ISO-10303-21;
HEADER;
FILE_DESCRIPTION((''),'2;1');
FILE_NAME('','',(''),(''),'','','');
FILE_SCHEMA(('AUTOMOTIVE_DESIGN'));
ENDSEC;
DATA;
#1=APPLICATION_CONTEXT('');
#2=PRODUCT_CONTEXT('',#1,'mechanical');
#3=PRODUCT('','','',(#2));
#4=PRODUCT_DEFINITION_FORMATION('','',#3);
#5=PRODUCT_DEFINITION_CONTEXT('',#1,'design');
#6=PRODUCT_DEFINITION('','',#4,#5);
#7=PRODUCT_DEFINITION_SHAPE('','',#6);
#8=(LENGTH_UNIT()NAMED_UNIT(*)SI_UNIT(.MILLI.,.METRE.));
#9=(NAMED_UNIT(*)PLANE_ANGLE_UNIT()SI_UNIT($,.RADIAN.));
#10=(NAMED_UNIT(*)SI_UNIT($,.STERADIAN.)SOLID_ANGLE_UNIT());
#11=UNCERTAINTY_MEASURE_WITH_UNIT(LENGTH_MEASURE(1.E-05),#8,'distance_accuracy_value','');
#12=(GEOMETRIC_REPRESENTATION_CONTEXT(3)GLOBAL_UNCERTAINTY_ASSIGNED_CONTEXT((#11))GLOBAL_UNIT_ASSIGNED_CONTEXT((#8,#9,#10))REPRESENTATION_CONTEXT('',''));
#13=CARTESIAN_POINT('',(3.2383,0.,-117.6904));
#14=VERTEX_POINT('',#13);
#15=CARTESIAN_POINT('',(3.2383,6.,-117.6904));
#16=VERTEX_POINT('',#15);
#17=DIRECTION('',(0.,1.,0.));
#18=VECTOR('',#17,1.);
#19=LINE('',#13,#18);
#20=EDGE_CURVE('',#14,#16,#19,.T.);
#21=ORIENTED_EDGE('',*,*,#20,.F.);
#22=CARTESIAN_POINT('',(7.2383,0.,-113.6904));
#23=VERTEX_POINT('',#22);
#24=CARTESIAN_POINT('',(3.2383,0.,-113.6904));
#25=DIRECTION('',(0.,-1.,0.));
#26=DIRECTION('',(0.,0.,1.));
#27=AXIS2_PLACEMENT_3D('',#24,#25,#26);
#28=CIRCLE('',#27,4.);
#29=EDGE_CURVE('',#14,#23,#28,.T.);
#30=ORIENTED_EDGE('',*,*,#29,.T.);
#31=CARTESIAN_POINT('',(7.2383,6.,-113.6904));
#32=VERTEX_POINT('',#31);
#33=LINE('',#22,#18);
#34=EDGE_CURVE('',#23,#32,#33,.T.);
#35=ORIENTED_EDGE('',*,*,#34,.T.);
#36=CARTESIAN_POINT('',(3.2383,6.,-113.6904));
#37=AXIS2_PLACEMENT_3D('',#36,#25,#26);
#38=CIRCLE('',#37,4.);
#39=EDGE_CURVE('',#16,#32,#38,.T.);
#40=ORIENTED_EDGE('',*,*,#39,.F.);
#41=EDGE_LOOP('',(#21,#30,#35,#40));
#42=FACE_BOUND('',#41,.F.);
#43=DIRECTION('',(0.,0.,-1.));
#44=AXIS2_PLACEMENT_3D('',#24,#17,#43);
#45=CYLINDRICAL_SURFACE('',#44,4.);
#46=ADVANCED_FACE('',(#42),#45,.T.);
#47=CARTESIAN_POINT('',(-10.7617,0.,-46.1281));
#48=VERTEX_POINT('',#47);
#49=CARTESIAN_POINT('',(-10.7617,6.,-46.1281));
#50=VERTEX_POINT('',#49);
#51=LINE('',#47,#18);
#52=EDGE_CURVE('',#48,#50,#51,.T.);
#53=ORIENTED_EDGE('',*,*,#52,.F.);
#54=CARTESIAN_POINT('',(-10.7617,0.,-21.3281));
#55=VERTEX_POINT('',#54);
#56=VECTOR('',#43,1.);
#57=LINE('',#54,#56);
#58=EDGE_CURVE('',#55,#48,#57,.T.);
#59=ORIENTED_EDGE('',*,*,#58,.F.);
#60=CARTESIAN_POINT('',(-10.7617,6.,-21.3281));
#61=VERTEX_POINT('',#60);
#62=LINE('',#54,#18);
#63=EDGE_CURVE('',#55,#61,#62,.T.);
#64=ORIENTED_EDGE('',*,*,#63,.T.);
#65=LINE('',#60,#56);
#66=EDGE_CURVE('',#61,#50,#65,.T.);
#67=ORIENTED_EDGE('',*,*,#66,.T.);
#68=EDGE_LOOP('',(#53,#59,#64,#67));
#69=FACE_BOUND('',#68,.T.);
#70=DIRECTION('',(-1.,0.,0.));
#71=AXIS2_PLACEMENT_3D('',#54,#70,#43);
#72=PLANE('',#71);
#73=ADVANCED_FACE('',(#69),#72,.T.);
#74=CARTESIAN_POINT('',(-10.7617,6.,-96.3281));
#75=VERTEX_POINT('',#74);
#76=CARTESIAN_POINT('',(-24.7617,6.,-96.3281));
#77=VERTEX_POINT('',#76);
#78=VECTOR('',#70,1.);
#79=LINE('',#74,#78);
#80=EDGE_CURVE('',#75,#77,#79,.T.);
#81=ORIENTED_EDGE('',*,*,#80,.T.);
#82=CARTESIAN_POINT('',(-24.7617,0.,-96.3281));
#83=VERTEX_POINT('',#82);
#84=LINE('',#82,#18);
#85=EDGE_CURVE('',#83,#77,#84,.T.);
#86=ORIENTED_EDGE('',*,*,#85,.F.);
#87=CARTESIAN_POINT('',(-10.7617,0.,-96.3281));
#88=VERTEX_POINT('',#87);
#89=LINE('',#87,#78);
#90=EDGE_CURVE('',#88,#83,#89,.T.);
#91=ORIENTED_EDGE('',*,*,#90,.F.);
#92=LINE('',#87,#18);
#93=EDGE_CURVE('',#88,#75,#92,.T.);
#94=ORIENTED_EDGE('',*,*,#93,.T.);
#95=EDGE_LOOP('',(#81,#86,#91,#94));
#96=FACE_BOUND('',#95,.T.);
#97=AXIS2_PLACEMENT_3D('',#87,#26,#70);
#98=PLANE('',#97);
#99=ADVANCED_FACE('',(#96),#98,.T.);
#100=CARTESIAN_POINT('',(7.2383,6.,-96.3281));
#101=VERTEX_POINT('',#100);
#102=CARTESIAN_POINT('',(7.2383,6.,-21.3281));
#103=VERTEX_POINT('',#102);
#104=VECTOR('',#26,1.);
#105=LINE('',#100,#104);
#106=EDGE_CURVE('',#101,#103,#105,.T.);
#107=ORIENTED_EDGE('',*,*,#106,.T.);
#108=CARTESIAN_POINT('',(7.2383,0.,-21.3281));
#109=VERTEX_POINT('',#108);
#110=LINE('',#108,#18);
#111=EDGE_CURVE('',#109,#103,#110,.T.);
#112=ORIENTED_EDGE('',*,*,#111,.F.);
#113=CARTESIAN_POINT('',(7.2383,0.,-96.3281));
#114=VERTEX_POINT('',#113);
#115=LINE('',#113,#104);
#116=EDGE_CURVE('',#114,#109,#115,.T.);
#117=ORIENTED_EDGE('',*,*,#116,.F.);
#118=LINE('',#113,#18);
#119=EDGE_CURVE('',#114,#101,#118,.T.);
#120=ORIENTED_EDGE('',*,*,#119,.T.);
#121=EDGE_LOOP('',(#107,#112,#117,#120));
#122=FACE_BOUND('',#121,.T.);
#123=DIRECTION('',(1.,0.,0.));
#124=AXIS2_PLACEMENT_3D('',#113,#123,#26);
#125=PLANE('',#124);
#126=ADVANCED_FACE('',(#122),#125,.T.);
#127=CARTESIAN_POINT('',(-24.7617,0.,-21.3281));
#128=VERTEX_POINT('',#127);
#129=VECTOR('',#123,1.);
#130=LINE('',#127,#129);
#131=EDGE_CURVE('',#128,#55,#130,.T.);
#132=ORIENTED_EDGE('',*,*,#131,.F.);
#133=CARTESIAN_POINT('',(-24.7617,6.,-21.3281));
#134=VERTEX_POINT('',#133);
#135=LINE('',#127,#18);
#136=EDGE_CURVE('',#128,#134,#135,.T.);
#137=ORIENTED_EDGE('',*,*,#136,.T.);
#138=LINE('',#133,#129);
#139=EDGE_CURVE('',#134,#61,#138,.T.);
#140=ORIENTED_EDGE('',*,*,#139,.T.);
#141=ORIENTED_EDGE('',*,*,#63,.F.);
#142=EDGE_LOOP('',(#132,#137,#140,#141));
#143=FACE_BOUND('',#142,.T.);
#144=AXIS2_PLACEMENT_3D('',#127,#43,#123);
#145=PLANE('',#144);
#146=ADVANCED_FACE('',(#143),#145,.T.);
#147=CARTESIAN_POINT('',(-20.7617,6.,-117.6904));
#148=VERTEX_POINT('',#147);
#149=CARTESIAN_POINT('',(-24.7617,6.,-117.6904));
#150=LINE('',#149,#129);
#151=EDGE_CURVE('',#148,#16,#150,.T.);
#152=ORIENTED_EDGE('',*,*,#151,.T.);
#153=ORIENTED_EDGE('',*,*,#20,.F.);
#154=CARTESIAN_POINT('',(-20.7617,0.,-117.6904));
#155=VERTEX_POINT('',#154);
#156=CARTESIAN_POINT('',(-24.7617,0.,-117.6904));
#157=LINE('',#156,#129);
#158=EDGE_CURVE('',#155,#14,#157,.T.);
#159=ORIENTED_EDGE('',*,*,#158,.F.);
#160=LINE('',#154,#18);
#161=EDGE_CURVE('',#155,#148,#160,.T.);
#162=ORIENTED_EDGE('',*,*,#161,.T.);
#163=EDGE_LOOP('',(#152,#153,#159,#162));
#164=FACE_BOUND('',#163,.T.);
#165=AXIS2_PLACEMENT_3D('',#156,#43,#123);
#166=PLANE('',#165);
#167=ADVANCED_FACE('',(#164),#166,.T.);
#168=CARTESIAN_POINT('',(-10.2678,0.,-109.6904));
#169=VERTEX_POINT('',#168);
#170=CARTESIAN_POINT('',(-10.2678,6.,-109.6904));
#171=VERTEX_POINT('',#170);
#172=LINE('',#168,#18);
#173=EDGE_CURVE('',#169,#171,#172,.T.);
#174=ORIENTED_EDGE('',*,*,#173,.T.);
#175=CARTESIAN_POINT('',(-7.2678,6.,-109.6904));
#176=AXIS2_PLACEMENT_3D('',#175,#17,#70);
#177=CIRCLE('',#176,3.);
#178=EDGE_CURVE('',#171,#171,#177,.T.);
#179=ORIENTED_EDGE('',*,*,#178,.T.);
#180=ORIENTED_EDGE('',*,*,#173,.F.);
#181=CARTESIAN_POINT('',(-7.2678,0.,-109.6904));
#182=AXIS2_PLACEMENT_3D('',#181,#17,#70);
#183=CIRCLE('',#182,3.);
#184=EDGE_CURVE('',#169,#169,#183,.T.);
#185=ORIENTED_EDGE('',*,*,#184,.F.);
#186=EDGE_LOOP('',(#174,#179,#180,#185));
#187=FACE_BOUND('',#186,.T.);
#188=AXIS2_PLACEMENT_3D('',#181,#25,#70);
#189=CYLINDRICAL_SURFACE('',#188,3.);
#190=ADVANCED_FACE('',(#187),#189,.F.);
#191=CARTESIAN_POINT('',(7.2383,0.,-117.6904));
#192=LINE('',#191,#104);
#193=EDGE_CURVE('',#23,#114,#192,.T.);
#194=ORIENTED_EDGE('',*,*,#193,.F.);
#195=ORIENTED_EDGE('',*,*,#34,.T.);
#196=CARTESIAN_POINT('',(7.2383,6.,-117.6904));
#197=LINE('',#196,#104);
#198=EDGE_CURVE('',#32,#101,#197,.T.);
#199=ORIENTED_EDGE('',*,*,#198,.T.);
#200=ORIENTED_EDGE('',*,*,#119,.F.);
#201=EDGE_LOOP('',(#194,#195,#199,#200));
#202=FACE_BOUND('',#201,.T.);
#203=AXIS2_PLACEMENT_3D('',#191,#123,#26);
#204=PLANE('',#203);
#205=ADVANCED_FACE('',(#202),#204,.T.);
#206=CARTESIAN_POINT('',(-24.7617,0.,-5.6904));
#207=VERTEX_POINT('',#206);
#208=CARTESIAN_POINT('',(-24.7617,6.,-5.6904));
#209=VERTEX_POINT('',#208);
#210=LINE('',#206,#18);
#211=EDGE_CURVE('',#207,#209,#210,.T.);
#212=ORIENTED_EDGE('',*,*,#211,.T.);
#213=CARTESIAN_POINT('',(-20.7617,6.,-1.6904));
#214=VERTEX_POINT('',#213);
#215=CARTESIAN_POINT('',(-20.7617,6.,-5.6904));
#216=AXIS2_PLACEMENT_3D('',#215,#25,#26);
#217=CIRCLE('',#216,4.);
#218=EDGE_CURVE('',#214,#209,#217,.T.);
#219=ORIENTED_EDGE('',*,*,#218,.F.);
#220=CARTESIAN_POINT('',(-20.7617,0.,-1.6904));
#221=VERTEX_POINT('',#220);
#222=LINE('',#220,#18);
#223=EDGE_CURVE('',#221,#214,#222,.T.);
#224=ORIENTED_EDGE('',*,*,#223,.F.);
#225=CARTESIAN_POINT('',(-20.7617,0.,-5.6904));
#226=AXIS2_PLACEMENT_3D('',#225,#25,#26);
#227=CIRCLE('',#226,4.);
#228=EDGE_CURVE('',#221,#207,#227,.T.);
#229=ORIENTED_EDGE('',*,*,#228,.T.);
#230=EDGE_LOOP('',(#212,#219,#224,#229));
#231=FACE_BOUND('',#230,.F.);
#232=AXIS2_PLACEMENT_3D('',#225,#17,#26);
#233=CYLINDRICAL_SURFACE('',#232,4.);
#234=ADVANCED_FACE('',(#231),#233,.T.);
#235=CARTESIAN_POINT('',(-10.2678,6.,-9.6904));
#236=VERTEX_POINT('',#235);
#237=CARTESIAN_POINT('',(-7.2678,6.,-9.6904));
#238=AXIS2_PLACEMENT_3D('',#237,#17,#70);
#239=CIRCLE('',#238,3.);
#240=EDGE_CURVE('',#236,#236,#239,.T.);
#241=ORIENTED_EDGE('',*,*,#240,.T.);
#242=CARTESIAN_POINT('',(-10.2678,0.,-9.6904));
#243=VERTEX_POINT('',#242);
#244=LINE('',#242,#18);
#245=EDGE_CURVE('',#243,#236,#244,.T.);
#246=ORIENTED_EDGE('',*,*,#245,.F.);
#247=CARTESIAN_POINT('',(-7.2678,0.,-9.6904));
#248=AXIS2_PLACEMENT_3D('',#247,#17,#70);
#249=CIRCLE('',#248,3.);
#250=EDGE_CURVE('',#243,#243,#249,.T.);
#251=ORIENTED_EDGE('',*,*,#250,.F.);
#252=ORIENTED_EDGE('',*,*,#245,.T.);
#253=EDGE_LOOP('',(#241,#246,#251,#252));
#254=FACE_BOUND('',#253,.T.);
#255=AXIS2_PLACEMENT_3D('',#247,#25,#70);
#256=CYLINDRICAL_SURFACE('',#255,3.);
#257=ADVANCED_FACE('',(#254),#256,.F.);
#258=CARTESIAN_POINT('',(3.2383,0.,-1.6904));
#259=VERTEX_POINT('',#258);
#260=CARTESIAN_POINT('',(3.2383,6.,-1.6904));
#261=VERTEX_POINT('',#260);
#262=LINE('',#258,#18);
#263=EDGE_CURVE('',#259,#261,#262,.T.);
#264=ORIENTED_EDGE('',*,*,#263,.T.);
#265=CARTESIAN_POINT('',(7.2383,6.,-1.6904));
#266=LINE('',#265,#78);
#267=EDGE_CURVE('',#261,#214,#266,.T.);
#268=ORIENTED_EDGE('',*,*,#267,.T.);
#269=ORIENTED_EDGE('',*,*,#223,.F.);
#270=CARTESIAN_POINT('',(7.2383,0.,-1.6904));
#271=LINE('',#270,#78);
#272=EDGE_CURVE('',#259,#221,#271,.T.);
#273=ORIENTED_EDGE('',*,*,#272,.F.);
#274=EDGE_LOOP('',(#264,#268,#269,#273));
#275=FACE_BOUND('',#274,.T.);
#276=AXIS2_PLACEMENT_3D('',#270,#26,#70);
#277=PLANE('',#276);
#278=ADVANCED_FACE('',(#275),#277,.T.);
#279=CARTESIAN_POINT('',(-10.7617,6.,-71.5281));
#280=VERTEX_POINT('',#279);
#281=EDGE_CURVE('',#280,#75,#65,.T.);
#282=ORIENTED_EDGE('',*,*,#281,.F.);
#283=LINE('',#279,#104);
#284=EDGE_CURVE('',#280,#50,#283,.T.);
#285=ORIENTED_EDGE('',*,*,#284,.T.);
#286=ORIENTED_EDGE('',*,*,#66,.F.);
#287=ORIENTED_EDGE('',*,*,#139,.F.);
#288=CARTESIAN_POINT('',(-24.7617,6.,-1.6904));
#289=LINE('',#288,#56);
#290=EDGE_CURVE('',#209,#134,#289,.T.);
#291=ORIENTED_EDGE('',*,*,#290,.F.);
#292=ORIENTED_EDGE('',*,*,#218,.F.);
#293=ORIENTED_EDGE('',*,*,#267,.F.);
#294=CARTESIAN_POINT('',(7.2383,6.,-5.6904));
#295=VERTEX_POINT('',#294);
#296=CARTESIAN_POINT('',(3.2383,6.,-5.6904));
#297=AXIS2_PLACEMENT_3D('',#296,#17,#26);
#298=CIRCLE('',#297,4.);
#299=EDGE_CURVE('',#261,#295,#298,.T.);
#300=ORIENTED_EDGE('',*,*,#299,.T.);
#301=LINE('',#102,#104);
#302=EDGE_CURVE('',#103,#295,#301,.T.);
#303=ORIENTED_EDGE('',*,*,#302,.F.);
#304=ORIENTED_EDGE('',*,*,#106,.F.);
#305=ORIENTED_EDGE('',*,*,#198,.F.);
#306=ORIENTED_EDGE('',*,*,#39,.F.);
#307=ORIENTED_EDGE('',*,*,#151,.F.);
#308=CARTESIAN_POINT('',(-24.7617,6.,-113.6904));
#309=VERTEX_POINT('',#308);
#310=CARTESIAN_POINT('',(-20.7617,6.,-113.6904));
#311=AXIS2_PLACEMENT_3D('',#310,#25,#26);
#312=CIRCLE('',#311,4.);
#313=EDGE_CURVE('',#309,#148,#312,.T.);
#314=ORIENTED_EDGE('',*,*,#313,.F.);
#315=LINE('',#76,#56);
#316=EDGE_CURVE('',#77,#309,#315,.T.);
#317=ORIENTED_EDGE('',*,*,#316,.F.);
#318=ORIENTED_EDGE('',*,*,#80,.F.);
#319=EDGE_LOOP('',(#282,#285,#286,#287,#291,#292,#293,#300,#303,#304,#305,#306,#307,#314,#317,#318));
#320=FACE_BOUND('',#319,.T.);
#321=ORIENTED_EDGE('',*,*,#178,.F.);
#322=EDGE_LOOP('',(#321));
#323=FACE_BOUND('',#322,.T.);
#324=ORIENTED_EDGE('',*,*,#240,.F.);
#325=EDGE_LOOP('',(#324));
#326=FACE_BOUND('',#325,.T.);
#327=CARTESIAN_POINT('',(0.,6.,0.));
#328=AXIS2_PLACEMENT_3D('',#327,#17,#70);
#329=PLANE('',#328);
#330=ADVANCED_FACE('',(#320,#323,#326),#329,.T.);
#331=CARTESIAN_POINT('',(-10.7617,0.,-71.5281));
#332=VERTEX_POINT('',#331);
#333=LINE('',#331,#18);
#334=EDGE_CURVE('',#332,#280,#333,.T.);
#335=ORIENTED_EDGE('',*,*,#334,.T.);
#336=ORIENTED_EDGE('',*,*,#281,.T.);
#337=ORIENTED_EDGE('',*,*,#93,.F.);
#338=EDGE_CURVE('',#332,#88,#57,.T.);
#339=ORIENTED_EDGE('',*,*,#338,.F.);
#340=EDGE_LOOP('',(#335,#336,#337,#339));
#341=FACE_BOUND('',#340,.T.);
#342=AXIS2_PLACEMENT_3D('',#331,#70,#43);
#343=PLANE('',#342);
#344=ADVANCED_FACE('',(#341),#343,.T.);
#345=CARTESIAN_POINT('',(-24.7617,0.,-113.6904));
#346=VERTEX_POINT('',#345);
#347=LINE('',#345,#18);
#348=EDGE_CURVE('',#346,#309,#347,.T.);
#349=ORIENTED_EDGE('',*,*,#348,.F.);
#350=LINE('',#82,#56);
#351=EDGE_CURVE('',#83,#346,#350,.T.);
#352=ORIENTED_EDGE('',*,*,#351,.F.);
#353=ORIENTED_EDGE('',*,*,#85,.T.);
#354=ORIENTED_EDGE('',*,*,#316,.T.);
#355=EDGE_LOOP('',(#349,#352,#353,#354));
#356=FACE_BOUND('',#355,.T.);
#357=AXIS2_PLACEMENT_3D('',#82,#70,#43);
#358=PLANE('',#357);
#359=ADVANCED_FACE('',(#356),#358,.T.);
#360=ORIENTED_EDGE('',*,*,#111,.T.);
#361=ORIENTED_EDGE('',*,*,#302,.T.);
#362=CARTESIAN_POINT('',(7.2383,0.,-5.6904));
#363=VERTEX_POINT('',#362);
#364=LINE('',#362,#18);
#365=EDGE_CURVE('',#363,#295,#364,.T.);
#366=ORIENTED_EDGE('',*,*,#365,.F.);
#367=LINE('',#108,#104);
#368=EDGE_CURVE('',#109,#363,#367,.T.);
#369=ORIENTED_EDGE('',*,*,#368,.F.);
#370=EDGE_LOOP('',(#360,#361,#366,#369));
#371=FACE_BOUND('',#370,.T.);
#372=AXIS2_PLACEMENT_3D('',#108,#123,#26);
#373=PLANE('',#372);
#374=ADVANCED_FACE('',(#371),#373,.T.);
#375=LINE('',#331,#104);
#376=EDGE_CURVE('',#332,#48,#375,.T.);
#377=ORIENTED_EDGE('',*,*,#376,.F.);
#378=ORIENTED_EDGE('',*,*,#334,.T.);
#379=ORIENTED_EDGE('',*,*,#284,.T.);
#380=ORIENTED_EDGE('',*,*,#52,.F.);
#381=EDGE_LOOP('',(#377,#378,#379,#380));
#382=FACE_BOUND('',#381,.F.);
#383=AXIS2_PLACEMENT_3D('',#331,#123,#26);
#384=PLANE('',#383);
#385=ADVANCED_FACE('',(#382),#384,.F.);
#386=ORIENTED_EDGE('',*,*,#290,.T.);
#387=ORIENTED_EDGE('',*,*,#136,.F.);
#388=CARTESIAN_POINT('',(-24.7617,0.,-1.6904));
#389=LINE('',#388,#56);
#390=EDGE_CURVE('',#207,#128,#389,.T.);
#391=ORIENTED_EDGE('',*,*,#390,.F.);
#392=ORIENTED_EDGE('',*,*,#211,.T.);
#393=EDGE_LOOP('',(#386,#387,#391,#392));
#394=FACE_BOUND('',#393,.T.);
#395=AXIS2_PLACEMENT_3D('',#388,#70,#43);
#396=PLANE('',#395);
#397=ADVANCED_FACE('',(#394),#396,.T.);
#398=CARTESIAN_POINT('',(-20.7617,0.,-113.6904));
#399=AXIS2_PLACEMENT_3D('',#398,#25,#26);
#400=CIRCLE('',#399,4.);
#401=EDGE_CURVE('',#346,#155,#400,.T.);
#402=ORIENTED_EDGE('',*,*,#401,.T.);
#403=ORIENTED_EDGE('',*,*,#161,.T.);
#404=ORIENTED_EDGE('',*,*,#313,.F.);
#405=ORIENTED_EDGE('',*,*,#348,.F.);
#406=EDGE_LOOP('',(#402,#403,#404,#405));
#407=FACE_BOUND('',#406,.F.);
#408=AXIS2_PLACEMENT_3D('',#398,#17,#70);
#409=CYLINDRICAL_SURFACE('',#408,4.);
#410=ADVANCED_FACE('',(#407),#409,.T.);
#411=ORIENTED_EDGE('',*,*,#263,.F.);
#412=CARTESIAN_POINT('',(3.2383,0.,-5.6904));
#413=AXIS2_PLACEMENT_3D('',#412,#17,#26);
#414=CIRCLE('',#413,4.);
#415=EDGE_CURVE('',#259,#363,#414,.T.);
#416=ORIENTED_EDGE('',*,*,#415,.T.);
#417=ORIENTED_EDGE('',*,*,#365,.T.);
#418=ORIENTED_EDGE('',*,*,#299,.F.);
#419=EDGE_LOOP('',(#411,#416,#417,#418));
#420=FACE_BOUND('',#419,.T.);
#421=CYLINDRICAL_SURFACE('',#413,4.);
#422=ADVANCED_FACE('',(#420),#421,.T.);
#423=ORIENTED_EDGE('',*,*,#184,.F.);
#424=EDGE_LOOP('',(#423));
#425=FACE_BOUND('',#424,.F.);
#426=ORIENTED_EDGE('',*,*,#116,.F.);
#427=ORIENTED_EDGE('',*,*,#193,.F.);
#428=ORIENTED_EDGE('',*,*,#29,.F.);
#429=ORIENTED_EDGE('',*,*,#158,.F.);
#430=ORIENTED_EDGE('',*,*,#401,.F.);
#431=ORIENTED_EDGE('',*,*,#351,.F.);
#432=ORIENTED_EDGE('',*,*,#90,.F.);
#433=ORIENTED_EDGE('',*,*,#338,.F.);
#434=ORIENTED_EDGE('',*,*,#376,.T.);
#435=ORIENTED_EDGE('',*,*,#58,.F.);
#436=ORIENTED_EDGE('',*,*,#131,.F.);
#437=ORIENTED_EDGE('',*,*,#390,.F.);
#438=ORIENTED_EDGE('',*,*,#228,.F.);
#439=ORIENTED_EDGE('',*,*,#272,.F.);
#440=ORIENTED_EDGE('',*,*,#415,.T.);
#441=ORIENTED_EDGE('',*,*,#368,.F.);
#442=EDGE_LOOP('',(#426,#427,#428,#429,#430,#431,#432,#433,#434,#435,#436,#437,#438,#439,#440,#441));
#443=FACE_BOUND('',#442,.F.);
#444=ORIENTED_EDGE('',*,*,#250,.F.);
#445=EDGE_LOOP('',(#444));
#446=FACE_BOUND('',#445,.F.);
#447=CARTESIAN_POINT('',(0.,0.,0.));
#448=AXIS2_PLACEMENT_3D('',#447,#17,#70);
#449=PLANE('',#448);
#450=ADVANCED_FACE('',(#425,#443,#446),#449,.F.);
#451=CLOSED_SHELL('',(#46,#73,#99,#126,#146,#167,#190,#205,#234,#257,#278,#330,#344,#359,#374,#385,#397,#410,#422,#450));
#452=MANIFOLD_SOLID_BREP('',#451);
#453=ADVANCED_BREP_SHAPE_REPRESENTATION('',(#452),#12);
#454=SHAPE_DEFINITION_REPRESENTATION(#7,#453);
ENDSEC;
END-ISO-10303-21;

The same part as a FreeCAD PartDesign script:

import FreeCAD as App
import Part
import Sketcher
from FreeCAD import Vector
Q = App.Units.Quantity


def edges_at(feature, points):
    """Names of the edges that pass closest to the given points."""
    edges = feature.Shape.Edges
    near = lambda p: min(range(len(edges)), key=lambda i: edges[i].distToShape(Part.Vertex(*p))[0])
    return sorted({f"Edge{near(p) + 1}" for p in points})


def add_polygon(sketch, points):
    """Adds a closed chain of lines whose ends are joined by coincident constraints."""
    first, n = sketch.GeometryCount, len(points)
    for a, b in zip(points, points[1:] + points[:1]):
        sketch.addGeometry(Part.LineSegment(App.Vector(*a, 0), App.Vector(*b, 0)), False)
    for i in range(n):
        sketch.addConstraint(Sketcher.Constraint("Coincident", first + i, 2, first + (i + 1) % n, 1))

doc = App.newDocument("Part")
params = doc.addObject("Spreadsheet::Sheet", "Params")
for row, (alias, value) in enumerate([
    ("sketch1_diameter", "6 mm"),
    ("sketch1_width", "32 mm"),
    ("sketch1_height", "116 mm"),
    ("sketch1_height2", "75 mm"),
    ("pad1_length", "6 mm"),
    ("fillet_radius", "4 mm"),
], start=1):
    params.set(f"A{row}", alias)
    params.set(f"B{row}", "=" + value)
    params.setAlias(f"B{row}", alias)

body = doc.addObject("PartDesign::Body", "Body")

# Sketch on XZ plane
sketch1 = doc.addObject("Sketcher::SketchObject", "Sketch")
body.addObject(sketch1)
sketch1.AttachmentSupport = (doc.XZ_Plane, [""])
sketch1.MapMode = "FlatFace"
add_polygon(sketch1, [(-24.8, -1.7), (7.2, -1.7), (7.2, -117.7), (-24.8, -117.7), (-24.8, -96.3), (-10.8, -96.3), (-10.8, -21.3), (-24.8, -21.3)])  # lines 0-7
sketch1.addGeometry(Part.Circle(Vector(-7.3, -109.7, 0), Vector(0, 0, 1), 3), False)  # 8
sketch1.addGeometry(Part.Circle(Vector(-7.3, -9.7, 0), Vector(0, 0, 1), 3), False)  # 9
sketch1.addConstraint([
    Sketcher.Constraint("Horizontal", 0),
    Sketcher.Constraint("Vertical", 1),
    Sketcher.Constraint("Horizontal", 2),
    Sketcher.Constraint("Vertical", 3),
    Sketcher.Constraint("Horizontal", 4),
    Sketcher.Constraint("Vertical", 5),
    Sketcher.Constraint("Horizontal", 6),
    Sketcher.Constraint("Vertical", 7),
    Sketcher.Constraint("Equal", 8, 9),
    Sketcher.Constraint("Vertical", 8, 3, 9, 3),
    Sketcher.Constraint("Vertical", 3, 2, 6, 2),
    Sketcher.Constraint("Diameter", 8, Q("6 mm")),
    Sketcher.Constraint("DistanceX", 0, 1, 0, 2, Q("32 mm")),
    Sketcher.Constraint("DistanceY", 9, 3, 0, 2, Q("8 mm")),
    Sketcher.Constraint("DistanceY", 1, 2, 8, 3, Q("8 mm")),
    Sketcher.Constraint("DistanceX", 4, 2, 1, 2, Q("18 mm")),
    Sketcher.Constraint("DistanceY", 1, 2, 1, 1, Q("116 mm")),
    Sketcher.Constraint("DistanceY", 5, 1, 5, 2, Q("75 mm")),
    Sketcher.Constraint("DistanceY", 3, 1, 3, 2, Q("21.3623 mm")),
    Sketcher.Constraint("DistanceY", 3, 2, -1, 1, Q("96.328 mm")),
    Sketcher.Constraint("DistanceX", 9, 3, 0, 2, Q("14.506 mm")),
    Sketcher.Constraint("DistanceX", 8, 3, -1, 1, Q("7.2678 mm")),
])
sketch1.setExpression("Constraints[19]", "Params.sketch1_diameter")
sketch1.setExpression("Constraints[20]", "Params.sketch1_width")
sketch1.setExpression("Constraints[24]", "Params.sketch1_height")
sketch1.setExpression("Constraints[25]", "Params.sketch1_height2")
pad1 = doc.addObject("PartDesign::Pad", "Pad")
body.addObject(pad1)
pad1.Profile = sketch1
pad1.setExpression("Length", "Params.pad1_length")
pad1.Reversed = True
doc.recompute()

fillet = doc.addObject("PartDesign::Fillet", "Fillet")
body.addObject(fillet)
fillet.Base = (pad1, edges_at(pad1, [
    (7.238, 3, -1.69),
    (7.238, 3, -117.69),
    (-24.762, 3, -117.69),
    (-24.762, 3, -1.69),
]))
fillet.setExpression("Radius", "Params.fillet_radius")

doc.recompute()
